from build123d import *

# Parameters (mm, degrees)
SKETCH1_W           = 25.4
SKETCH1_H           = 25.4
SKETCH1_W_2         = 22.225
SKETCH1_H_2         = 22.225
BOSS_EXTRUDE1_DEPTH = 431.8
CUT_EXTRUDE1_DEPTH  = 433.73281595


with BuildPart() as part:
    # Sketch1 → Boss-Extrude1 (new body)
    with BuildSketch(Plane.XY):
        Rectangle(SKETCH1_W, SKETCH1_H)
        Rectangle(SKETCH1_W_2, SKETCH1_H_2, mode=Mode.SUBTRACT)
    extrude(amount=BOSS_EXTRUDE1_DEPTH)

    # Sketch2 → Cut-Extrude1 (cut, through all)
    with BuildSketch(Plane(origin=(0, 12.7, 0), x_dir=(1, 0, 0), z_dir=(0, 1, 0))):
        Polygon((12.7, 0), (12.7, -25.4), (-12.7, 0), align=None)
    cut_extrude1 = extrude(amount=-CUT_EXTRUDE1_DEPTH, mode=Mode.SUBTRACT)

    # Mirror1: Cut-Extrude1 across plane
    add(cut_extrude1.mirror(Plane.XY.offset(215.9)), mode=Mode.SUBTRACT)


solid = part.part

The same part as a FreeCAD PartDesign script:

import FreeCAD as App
import Part
import Sketcher
Q = App.Units.Quantity


def add_polygon(sketch, points):
    """Adds a closed chain of lines whose ends are joined by coincident constraints."""
    first, n = sketch.GeometryCount, len(points)
    for a, b in zip(points, points[1:] + points[:1]):
        sketch.addGeometry(Part.LineSegment(App.Vector(*a, 0), App.Vector(*b, 0)), False)
    for i in range(n):
        sketch.addConstraint(Sketcher.Constraint("Coincident", first + i, 2, first + (i + 1) % n, 1))

doc = App.newDocument("Part")
body = doc.addObject("PartDesign::Body", "Body")

# Sketch on XY plane
sketch1 = doc.addObject("Sketcher::SketchObject", "Sketch")
body.addObject(sketch1)
sketch1.AttachmentSupport = (doc.XY_Plane, [""])
sketch1.MapMode = "FlatFace"
add_polygon(sketch1, [(-13, 13), (-13, -13), (13, -13), (13, 13)])  # lines 0-3
add_polygon(sketch1, [(11, -11), (-11, -11), (-11, 11), (11, 11)])  # lines 4-7
sketch1.addConstraint([
    Sketcher.Constraint("Vertical", 0),
    Sketcher.Constraint("Horizontal", 1),
    Sketcher.Constraint("Vertical", 2),
    Sketcher.Constraint("Horizontal", 3),
    Sketcher.Constraint("Horizontal", 4),
    Sketcher.Constraint("Vertical", 5),
    Sketcher.Constraint("Horizontal", 6),
    Sketcher.Constraint("Vertical", 7),
    Sketcher.Constraint("Symmetric", 0, 2, 2, 2, -1, 1),
    Sketcher.Constraint("Symmetric", 4, 2, 6, 2, -1, 1),
    Sketcher.Constraint("Equal", 3, 0),
    Sketcher.Constraint("Equal", 6, 5),
    Sketcher.Constraint("DistanceX", 1, 1, 1, 2, Q("1 in")),
    Sketcher.Constraint("DistanceX", 4, 2, 4, 1, Q("0.875 in")),
])
pad1 = doc.addObject("PartDesign::Pad", "Pad")
body.addObject(pad1)
pad1.Profile = sketch1
pad1.Length = Q("17 in")

# Sketch on XZ plane
sketch2 = doc.addObject("Sketcher::SketchObject", "Sketch001")
body.addObject(sketch2)
sketch2.AttachmentSupport = (doc.XZ_Plane, [""])
sketch2.MapMode = "FlatFace"
sketch2.AttachmentOffset = App.Placement(App.Vector(0, 0, -0.5 * 25.4), App.Rotation())
add_polygon(sketch2, [(13, 25), (13, 0), (-13, 0)])  # lines 0-2
sketch2.addConstraint([
    Sketcher.Constraint("Vertical", 0),
    Sketcher.Constraint("Horizontal", 1),
    Sketcher.Constraint("Symmetric", 0, 2, 1, 2, -1, 1),
    Sketcher.Constraint("Equal", 1, 0),
    Sketcher.Constraint("DistanceX", 1, 2, 1, 1, Q("1 in")),
])
pocket1 = doc.addObject("PartDesign::Pocket", "Pocket")
body.addObject(pocket1)
pocket1.Profile = sketch2
pocket1.Type = "ThroughAll"
pocket1.Reversed = True
doc.recompute()

datumplane = doc.addObject("PartDesign::Plane", "DatumPlane")
body.addObject(datumplane)
datumplane.AttachmentSupport = (doc.XY_Plane, [""])
datumplane.MapMode = "FlatFace"
datumplane.AttachmentOffset = App.Placement(App.Vector(0, 0, 8.5 * 25.4), App.Rotation())
mirrored = doc.addObject("PartDesign::Mirrored", "Mirrored")
body.addObject(mirrored)
mirrored.Originals = [pocket1]
mirrored.MirrorPlane = (datumplane, [""])
body.Tip = mirrored

doc.recompute()
